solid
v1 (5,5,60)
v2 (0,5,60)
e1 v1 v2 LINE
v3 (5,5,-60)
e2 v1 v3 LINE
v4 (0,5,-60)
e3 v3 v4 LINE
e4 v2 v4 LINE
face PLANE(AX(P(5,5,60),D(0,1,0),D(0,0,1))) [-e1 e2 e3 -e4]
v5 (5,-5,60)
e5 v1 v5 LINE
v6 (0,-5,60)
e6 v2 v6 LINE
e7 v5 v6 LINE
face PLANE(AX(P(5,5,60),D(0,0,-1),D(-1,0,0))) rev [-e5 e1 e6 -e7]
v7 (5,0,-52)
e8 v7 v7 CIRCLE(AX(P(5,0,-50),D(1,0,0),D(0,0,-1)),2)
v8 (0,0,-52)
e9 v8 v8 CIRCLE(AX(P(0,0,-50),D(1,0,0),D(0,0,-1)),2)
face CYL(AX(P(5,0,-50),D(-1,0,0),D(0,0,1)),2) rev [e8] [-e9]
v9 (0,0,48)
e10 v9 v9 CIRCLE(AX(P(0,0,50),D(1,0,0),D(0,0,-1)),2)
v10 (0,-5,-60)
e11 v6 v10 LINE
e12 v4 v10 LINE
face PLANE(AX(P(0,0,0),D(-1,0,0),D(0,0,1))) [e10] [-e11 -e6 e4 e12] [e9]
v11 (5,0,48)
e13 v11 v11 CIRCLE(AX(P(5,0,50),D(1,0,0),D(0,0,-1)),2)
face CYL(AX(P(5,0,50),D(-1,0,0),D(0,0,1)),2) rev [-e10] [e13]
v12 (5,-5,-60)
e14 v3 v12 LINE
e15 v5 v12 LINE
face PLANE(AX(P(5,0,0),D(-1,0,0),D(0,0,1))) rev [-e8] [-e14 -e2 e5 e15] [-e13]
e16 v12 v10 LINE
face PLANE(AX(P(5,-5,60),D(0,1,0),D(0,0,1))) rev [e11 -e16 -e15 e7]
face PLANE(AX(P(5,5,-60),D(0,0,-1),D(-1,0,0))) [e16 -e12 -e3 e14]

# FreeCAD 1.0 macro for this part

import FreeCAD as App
import Part
import Sketcher
from FreeCAD import Vector
Q = App.Units.Quantity

doc = App.newDocument("Part")
params = doc.addObject("Spreadsheet::Sheet", "Params")
for row, (alias, value) in enumerate([
    ("sketch1_diameter", "4 mm"),
    ("sketch1_width", "10 mm"),
    ("sketch1_height", "120 mm"),
    ("pad1_length", "5 mm"),
], start=1):
    params.set(f"A{row}", alias)
    params.set(f"B{row}", "=" + value)
    params.setAlias(f"B{row}", alias)

body = doc.addObject("PartDesign::Body", "Body")

# Sketch on YZ plane
sketch1 = body.newObject("Sketcher::SketchObject", "Sketch")
sketch1.AttachmentSupport = (doc.getObject("YZ_Plane"), [""])
sketch1.MapMode = "FlatFace"
sketch1.addGeometry([
    Part.LineSegment(Vector(5, 60, 0), Vector(-5, 60, 0)),  # 0
    Part.LineSegment(Vector(-5, 60, 0), Vector(-5, -60, 0)),  # 1
    Part.LineSegment(Vector(-5, -60, 0), Vector(5, -60, 0)),  # 2
    Part.LineSegment(Vector(5, -60, 0), Vector(5, 60, 0)),  # 3
    Part.Circle(Vector(0, 50, 0), Vector(0, 0, 1), 2),  # 4
    Part.Circle(Vector(0, -50, 0), Vector(0, 0, 1), 2),  # 5
], False)
sketch1.addConstraint([
    Sketcher.Constraint("Coincident", 0, 2, 1, 1),
    Sketcher.Constraint("Coincident", 1, 2, 2, 1),
    Sketcher.Constraint("Coincident", 2, 2, 3, 1),
    Sketcher.Constraint("Coincident", 3, 2, 0, 1),
    Sketcher.Constraint("Horizontal", 0),
    Sketcher.Constraint("Vertical", 1),
    Sketcher.Constraint("Horizontal", 2),
    Sketcher.Constraint("Vertical", 3),
    Sketcher.Constraint("Equal", 4, 5),
    Sketcher.Constraint("Symmetric", 4, 3, 5, 3, -1, 1),
    Sketcher.Constraint("Symmetric", 0, 2, 2, 2, -1, 1),
    Sketcher.Constraint("PointOnObject", 4, 3, -2),
    Sketcher.Constraint("Diameter", 4, Q("4 mm")),
    Sketcher.Constraint("DistanceX", 0, 2, 0, 1, Q("10 mm")),
    Sketcher.Constraint("DistanceY", 1, 2, 1, 1, Q("120 mm")),
    Sketcher.Constraint("DistanceY", -1, 1, 4, 3, Q("50 mm")),
])
sketch1.setExpression("Constraints[12]", "Params.sketch1_diameter")
sketch1.setExpression("Constraints[13]", "Params.sketch1_width")
sketch1.setExpression("Constraints[14]", "Params.sketch1_height")
pad1 = body.newObject("PartDesign::Pad", "Pad")
pad1.Profile = sketch1
pad1.setExpression("Length", "Params.pad1_length")

doc.recompute()
